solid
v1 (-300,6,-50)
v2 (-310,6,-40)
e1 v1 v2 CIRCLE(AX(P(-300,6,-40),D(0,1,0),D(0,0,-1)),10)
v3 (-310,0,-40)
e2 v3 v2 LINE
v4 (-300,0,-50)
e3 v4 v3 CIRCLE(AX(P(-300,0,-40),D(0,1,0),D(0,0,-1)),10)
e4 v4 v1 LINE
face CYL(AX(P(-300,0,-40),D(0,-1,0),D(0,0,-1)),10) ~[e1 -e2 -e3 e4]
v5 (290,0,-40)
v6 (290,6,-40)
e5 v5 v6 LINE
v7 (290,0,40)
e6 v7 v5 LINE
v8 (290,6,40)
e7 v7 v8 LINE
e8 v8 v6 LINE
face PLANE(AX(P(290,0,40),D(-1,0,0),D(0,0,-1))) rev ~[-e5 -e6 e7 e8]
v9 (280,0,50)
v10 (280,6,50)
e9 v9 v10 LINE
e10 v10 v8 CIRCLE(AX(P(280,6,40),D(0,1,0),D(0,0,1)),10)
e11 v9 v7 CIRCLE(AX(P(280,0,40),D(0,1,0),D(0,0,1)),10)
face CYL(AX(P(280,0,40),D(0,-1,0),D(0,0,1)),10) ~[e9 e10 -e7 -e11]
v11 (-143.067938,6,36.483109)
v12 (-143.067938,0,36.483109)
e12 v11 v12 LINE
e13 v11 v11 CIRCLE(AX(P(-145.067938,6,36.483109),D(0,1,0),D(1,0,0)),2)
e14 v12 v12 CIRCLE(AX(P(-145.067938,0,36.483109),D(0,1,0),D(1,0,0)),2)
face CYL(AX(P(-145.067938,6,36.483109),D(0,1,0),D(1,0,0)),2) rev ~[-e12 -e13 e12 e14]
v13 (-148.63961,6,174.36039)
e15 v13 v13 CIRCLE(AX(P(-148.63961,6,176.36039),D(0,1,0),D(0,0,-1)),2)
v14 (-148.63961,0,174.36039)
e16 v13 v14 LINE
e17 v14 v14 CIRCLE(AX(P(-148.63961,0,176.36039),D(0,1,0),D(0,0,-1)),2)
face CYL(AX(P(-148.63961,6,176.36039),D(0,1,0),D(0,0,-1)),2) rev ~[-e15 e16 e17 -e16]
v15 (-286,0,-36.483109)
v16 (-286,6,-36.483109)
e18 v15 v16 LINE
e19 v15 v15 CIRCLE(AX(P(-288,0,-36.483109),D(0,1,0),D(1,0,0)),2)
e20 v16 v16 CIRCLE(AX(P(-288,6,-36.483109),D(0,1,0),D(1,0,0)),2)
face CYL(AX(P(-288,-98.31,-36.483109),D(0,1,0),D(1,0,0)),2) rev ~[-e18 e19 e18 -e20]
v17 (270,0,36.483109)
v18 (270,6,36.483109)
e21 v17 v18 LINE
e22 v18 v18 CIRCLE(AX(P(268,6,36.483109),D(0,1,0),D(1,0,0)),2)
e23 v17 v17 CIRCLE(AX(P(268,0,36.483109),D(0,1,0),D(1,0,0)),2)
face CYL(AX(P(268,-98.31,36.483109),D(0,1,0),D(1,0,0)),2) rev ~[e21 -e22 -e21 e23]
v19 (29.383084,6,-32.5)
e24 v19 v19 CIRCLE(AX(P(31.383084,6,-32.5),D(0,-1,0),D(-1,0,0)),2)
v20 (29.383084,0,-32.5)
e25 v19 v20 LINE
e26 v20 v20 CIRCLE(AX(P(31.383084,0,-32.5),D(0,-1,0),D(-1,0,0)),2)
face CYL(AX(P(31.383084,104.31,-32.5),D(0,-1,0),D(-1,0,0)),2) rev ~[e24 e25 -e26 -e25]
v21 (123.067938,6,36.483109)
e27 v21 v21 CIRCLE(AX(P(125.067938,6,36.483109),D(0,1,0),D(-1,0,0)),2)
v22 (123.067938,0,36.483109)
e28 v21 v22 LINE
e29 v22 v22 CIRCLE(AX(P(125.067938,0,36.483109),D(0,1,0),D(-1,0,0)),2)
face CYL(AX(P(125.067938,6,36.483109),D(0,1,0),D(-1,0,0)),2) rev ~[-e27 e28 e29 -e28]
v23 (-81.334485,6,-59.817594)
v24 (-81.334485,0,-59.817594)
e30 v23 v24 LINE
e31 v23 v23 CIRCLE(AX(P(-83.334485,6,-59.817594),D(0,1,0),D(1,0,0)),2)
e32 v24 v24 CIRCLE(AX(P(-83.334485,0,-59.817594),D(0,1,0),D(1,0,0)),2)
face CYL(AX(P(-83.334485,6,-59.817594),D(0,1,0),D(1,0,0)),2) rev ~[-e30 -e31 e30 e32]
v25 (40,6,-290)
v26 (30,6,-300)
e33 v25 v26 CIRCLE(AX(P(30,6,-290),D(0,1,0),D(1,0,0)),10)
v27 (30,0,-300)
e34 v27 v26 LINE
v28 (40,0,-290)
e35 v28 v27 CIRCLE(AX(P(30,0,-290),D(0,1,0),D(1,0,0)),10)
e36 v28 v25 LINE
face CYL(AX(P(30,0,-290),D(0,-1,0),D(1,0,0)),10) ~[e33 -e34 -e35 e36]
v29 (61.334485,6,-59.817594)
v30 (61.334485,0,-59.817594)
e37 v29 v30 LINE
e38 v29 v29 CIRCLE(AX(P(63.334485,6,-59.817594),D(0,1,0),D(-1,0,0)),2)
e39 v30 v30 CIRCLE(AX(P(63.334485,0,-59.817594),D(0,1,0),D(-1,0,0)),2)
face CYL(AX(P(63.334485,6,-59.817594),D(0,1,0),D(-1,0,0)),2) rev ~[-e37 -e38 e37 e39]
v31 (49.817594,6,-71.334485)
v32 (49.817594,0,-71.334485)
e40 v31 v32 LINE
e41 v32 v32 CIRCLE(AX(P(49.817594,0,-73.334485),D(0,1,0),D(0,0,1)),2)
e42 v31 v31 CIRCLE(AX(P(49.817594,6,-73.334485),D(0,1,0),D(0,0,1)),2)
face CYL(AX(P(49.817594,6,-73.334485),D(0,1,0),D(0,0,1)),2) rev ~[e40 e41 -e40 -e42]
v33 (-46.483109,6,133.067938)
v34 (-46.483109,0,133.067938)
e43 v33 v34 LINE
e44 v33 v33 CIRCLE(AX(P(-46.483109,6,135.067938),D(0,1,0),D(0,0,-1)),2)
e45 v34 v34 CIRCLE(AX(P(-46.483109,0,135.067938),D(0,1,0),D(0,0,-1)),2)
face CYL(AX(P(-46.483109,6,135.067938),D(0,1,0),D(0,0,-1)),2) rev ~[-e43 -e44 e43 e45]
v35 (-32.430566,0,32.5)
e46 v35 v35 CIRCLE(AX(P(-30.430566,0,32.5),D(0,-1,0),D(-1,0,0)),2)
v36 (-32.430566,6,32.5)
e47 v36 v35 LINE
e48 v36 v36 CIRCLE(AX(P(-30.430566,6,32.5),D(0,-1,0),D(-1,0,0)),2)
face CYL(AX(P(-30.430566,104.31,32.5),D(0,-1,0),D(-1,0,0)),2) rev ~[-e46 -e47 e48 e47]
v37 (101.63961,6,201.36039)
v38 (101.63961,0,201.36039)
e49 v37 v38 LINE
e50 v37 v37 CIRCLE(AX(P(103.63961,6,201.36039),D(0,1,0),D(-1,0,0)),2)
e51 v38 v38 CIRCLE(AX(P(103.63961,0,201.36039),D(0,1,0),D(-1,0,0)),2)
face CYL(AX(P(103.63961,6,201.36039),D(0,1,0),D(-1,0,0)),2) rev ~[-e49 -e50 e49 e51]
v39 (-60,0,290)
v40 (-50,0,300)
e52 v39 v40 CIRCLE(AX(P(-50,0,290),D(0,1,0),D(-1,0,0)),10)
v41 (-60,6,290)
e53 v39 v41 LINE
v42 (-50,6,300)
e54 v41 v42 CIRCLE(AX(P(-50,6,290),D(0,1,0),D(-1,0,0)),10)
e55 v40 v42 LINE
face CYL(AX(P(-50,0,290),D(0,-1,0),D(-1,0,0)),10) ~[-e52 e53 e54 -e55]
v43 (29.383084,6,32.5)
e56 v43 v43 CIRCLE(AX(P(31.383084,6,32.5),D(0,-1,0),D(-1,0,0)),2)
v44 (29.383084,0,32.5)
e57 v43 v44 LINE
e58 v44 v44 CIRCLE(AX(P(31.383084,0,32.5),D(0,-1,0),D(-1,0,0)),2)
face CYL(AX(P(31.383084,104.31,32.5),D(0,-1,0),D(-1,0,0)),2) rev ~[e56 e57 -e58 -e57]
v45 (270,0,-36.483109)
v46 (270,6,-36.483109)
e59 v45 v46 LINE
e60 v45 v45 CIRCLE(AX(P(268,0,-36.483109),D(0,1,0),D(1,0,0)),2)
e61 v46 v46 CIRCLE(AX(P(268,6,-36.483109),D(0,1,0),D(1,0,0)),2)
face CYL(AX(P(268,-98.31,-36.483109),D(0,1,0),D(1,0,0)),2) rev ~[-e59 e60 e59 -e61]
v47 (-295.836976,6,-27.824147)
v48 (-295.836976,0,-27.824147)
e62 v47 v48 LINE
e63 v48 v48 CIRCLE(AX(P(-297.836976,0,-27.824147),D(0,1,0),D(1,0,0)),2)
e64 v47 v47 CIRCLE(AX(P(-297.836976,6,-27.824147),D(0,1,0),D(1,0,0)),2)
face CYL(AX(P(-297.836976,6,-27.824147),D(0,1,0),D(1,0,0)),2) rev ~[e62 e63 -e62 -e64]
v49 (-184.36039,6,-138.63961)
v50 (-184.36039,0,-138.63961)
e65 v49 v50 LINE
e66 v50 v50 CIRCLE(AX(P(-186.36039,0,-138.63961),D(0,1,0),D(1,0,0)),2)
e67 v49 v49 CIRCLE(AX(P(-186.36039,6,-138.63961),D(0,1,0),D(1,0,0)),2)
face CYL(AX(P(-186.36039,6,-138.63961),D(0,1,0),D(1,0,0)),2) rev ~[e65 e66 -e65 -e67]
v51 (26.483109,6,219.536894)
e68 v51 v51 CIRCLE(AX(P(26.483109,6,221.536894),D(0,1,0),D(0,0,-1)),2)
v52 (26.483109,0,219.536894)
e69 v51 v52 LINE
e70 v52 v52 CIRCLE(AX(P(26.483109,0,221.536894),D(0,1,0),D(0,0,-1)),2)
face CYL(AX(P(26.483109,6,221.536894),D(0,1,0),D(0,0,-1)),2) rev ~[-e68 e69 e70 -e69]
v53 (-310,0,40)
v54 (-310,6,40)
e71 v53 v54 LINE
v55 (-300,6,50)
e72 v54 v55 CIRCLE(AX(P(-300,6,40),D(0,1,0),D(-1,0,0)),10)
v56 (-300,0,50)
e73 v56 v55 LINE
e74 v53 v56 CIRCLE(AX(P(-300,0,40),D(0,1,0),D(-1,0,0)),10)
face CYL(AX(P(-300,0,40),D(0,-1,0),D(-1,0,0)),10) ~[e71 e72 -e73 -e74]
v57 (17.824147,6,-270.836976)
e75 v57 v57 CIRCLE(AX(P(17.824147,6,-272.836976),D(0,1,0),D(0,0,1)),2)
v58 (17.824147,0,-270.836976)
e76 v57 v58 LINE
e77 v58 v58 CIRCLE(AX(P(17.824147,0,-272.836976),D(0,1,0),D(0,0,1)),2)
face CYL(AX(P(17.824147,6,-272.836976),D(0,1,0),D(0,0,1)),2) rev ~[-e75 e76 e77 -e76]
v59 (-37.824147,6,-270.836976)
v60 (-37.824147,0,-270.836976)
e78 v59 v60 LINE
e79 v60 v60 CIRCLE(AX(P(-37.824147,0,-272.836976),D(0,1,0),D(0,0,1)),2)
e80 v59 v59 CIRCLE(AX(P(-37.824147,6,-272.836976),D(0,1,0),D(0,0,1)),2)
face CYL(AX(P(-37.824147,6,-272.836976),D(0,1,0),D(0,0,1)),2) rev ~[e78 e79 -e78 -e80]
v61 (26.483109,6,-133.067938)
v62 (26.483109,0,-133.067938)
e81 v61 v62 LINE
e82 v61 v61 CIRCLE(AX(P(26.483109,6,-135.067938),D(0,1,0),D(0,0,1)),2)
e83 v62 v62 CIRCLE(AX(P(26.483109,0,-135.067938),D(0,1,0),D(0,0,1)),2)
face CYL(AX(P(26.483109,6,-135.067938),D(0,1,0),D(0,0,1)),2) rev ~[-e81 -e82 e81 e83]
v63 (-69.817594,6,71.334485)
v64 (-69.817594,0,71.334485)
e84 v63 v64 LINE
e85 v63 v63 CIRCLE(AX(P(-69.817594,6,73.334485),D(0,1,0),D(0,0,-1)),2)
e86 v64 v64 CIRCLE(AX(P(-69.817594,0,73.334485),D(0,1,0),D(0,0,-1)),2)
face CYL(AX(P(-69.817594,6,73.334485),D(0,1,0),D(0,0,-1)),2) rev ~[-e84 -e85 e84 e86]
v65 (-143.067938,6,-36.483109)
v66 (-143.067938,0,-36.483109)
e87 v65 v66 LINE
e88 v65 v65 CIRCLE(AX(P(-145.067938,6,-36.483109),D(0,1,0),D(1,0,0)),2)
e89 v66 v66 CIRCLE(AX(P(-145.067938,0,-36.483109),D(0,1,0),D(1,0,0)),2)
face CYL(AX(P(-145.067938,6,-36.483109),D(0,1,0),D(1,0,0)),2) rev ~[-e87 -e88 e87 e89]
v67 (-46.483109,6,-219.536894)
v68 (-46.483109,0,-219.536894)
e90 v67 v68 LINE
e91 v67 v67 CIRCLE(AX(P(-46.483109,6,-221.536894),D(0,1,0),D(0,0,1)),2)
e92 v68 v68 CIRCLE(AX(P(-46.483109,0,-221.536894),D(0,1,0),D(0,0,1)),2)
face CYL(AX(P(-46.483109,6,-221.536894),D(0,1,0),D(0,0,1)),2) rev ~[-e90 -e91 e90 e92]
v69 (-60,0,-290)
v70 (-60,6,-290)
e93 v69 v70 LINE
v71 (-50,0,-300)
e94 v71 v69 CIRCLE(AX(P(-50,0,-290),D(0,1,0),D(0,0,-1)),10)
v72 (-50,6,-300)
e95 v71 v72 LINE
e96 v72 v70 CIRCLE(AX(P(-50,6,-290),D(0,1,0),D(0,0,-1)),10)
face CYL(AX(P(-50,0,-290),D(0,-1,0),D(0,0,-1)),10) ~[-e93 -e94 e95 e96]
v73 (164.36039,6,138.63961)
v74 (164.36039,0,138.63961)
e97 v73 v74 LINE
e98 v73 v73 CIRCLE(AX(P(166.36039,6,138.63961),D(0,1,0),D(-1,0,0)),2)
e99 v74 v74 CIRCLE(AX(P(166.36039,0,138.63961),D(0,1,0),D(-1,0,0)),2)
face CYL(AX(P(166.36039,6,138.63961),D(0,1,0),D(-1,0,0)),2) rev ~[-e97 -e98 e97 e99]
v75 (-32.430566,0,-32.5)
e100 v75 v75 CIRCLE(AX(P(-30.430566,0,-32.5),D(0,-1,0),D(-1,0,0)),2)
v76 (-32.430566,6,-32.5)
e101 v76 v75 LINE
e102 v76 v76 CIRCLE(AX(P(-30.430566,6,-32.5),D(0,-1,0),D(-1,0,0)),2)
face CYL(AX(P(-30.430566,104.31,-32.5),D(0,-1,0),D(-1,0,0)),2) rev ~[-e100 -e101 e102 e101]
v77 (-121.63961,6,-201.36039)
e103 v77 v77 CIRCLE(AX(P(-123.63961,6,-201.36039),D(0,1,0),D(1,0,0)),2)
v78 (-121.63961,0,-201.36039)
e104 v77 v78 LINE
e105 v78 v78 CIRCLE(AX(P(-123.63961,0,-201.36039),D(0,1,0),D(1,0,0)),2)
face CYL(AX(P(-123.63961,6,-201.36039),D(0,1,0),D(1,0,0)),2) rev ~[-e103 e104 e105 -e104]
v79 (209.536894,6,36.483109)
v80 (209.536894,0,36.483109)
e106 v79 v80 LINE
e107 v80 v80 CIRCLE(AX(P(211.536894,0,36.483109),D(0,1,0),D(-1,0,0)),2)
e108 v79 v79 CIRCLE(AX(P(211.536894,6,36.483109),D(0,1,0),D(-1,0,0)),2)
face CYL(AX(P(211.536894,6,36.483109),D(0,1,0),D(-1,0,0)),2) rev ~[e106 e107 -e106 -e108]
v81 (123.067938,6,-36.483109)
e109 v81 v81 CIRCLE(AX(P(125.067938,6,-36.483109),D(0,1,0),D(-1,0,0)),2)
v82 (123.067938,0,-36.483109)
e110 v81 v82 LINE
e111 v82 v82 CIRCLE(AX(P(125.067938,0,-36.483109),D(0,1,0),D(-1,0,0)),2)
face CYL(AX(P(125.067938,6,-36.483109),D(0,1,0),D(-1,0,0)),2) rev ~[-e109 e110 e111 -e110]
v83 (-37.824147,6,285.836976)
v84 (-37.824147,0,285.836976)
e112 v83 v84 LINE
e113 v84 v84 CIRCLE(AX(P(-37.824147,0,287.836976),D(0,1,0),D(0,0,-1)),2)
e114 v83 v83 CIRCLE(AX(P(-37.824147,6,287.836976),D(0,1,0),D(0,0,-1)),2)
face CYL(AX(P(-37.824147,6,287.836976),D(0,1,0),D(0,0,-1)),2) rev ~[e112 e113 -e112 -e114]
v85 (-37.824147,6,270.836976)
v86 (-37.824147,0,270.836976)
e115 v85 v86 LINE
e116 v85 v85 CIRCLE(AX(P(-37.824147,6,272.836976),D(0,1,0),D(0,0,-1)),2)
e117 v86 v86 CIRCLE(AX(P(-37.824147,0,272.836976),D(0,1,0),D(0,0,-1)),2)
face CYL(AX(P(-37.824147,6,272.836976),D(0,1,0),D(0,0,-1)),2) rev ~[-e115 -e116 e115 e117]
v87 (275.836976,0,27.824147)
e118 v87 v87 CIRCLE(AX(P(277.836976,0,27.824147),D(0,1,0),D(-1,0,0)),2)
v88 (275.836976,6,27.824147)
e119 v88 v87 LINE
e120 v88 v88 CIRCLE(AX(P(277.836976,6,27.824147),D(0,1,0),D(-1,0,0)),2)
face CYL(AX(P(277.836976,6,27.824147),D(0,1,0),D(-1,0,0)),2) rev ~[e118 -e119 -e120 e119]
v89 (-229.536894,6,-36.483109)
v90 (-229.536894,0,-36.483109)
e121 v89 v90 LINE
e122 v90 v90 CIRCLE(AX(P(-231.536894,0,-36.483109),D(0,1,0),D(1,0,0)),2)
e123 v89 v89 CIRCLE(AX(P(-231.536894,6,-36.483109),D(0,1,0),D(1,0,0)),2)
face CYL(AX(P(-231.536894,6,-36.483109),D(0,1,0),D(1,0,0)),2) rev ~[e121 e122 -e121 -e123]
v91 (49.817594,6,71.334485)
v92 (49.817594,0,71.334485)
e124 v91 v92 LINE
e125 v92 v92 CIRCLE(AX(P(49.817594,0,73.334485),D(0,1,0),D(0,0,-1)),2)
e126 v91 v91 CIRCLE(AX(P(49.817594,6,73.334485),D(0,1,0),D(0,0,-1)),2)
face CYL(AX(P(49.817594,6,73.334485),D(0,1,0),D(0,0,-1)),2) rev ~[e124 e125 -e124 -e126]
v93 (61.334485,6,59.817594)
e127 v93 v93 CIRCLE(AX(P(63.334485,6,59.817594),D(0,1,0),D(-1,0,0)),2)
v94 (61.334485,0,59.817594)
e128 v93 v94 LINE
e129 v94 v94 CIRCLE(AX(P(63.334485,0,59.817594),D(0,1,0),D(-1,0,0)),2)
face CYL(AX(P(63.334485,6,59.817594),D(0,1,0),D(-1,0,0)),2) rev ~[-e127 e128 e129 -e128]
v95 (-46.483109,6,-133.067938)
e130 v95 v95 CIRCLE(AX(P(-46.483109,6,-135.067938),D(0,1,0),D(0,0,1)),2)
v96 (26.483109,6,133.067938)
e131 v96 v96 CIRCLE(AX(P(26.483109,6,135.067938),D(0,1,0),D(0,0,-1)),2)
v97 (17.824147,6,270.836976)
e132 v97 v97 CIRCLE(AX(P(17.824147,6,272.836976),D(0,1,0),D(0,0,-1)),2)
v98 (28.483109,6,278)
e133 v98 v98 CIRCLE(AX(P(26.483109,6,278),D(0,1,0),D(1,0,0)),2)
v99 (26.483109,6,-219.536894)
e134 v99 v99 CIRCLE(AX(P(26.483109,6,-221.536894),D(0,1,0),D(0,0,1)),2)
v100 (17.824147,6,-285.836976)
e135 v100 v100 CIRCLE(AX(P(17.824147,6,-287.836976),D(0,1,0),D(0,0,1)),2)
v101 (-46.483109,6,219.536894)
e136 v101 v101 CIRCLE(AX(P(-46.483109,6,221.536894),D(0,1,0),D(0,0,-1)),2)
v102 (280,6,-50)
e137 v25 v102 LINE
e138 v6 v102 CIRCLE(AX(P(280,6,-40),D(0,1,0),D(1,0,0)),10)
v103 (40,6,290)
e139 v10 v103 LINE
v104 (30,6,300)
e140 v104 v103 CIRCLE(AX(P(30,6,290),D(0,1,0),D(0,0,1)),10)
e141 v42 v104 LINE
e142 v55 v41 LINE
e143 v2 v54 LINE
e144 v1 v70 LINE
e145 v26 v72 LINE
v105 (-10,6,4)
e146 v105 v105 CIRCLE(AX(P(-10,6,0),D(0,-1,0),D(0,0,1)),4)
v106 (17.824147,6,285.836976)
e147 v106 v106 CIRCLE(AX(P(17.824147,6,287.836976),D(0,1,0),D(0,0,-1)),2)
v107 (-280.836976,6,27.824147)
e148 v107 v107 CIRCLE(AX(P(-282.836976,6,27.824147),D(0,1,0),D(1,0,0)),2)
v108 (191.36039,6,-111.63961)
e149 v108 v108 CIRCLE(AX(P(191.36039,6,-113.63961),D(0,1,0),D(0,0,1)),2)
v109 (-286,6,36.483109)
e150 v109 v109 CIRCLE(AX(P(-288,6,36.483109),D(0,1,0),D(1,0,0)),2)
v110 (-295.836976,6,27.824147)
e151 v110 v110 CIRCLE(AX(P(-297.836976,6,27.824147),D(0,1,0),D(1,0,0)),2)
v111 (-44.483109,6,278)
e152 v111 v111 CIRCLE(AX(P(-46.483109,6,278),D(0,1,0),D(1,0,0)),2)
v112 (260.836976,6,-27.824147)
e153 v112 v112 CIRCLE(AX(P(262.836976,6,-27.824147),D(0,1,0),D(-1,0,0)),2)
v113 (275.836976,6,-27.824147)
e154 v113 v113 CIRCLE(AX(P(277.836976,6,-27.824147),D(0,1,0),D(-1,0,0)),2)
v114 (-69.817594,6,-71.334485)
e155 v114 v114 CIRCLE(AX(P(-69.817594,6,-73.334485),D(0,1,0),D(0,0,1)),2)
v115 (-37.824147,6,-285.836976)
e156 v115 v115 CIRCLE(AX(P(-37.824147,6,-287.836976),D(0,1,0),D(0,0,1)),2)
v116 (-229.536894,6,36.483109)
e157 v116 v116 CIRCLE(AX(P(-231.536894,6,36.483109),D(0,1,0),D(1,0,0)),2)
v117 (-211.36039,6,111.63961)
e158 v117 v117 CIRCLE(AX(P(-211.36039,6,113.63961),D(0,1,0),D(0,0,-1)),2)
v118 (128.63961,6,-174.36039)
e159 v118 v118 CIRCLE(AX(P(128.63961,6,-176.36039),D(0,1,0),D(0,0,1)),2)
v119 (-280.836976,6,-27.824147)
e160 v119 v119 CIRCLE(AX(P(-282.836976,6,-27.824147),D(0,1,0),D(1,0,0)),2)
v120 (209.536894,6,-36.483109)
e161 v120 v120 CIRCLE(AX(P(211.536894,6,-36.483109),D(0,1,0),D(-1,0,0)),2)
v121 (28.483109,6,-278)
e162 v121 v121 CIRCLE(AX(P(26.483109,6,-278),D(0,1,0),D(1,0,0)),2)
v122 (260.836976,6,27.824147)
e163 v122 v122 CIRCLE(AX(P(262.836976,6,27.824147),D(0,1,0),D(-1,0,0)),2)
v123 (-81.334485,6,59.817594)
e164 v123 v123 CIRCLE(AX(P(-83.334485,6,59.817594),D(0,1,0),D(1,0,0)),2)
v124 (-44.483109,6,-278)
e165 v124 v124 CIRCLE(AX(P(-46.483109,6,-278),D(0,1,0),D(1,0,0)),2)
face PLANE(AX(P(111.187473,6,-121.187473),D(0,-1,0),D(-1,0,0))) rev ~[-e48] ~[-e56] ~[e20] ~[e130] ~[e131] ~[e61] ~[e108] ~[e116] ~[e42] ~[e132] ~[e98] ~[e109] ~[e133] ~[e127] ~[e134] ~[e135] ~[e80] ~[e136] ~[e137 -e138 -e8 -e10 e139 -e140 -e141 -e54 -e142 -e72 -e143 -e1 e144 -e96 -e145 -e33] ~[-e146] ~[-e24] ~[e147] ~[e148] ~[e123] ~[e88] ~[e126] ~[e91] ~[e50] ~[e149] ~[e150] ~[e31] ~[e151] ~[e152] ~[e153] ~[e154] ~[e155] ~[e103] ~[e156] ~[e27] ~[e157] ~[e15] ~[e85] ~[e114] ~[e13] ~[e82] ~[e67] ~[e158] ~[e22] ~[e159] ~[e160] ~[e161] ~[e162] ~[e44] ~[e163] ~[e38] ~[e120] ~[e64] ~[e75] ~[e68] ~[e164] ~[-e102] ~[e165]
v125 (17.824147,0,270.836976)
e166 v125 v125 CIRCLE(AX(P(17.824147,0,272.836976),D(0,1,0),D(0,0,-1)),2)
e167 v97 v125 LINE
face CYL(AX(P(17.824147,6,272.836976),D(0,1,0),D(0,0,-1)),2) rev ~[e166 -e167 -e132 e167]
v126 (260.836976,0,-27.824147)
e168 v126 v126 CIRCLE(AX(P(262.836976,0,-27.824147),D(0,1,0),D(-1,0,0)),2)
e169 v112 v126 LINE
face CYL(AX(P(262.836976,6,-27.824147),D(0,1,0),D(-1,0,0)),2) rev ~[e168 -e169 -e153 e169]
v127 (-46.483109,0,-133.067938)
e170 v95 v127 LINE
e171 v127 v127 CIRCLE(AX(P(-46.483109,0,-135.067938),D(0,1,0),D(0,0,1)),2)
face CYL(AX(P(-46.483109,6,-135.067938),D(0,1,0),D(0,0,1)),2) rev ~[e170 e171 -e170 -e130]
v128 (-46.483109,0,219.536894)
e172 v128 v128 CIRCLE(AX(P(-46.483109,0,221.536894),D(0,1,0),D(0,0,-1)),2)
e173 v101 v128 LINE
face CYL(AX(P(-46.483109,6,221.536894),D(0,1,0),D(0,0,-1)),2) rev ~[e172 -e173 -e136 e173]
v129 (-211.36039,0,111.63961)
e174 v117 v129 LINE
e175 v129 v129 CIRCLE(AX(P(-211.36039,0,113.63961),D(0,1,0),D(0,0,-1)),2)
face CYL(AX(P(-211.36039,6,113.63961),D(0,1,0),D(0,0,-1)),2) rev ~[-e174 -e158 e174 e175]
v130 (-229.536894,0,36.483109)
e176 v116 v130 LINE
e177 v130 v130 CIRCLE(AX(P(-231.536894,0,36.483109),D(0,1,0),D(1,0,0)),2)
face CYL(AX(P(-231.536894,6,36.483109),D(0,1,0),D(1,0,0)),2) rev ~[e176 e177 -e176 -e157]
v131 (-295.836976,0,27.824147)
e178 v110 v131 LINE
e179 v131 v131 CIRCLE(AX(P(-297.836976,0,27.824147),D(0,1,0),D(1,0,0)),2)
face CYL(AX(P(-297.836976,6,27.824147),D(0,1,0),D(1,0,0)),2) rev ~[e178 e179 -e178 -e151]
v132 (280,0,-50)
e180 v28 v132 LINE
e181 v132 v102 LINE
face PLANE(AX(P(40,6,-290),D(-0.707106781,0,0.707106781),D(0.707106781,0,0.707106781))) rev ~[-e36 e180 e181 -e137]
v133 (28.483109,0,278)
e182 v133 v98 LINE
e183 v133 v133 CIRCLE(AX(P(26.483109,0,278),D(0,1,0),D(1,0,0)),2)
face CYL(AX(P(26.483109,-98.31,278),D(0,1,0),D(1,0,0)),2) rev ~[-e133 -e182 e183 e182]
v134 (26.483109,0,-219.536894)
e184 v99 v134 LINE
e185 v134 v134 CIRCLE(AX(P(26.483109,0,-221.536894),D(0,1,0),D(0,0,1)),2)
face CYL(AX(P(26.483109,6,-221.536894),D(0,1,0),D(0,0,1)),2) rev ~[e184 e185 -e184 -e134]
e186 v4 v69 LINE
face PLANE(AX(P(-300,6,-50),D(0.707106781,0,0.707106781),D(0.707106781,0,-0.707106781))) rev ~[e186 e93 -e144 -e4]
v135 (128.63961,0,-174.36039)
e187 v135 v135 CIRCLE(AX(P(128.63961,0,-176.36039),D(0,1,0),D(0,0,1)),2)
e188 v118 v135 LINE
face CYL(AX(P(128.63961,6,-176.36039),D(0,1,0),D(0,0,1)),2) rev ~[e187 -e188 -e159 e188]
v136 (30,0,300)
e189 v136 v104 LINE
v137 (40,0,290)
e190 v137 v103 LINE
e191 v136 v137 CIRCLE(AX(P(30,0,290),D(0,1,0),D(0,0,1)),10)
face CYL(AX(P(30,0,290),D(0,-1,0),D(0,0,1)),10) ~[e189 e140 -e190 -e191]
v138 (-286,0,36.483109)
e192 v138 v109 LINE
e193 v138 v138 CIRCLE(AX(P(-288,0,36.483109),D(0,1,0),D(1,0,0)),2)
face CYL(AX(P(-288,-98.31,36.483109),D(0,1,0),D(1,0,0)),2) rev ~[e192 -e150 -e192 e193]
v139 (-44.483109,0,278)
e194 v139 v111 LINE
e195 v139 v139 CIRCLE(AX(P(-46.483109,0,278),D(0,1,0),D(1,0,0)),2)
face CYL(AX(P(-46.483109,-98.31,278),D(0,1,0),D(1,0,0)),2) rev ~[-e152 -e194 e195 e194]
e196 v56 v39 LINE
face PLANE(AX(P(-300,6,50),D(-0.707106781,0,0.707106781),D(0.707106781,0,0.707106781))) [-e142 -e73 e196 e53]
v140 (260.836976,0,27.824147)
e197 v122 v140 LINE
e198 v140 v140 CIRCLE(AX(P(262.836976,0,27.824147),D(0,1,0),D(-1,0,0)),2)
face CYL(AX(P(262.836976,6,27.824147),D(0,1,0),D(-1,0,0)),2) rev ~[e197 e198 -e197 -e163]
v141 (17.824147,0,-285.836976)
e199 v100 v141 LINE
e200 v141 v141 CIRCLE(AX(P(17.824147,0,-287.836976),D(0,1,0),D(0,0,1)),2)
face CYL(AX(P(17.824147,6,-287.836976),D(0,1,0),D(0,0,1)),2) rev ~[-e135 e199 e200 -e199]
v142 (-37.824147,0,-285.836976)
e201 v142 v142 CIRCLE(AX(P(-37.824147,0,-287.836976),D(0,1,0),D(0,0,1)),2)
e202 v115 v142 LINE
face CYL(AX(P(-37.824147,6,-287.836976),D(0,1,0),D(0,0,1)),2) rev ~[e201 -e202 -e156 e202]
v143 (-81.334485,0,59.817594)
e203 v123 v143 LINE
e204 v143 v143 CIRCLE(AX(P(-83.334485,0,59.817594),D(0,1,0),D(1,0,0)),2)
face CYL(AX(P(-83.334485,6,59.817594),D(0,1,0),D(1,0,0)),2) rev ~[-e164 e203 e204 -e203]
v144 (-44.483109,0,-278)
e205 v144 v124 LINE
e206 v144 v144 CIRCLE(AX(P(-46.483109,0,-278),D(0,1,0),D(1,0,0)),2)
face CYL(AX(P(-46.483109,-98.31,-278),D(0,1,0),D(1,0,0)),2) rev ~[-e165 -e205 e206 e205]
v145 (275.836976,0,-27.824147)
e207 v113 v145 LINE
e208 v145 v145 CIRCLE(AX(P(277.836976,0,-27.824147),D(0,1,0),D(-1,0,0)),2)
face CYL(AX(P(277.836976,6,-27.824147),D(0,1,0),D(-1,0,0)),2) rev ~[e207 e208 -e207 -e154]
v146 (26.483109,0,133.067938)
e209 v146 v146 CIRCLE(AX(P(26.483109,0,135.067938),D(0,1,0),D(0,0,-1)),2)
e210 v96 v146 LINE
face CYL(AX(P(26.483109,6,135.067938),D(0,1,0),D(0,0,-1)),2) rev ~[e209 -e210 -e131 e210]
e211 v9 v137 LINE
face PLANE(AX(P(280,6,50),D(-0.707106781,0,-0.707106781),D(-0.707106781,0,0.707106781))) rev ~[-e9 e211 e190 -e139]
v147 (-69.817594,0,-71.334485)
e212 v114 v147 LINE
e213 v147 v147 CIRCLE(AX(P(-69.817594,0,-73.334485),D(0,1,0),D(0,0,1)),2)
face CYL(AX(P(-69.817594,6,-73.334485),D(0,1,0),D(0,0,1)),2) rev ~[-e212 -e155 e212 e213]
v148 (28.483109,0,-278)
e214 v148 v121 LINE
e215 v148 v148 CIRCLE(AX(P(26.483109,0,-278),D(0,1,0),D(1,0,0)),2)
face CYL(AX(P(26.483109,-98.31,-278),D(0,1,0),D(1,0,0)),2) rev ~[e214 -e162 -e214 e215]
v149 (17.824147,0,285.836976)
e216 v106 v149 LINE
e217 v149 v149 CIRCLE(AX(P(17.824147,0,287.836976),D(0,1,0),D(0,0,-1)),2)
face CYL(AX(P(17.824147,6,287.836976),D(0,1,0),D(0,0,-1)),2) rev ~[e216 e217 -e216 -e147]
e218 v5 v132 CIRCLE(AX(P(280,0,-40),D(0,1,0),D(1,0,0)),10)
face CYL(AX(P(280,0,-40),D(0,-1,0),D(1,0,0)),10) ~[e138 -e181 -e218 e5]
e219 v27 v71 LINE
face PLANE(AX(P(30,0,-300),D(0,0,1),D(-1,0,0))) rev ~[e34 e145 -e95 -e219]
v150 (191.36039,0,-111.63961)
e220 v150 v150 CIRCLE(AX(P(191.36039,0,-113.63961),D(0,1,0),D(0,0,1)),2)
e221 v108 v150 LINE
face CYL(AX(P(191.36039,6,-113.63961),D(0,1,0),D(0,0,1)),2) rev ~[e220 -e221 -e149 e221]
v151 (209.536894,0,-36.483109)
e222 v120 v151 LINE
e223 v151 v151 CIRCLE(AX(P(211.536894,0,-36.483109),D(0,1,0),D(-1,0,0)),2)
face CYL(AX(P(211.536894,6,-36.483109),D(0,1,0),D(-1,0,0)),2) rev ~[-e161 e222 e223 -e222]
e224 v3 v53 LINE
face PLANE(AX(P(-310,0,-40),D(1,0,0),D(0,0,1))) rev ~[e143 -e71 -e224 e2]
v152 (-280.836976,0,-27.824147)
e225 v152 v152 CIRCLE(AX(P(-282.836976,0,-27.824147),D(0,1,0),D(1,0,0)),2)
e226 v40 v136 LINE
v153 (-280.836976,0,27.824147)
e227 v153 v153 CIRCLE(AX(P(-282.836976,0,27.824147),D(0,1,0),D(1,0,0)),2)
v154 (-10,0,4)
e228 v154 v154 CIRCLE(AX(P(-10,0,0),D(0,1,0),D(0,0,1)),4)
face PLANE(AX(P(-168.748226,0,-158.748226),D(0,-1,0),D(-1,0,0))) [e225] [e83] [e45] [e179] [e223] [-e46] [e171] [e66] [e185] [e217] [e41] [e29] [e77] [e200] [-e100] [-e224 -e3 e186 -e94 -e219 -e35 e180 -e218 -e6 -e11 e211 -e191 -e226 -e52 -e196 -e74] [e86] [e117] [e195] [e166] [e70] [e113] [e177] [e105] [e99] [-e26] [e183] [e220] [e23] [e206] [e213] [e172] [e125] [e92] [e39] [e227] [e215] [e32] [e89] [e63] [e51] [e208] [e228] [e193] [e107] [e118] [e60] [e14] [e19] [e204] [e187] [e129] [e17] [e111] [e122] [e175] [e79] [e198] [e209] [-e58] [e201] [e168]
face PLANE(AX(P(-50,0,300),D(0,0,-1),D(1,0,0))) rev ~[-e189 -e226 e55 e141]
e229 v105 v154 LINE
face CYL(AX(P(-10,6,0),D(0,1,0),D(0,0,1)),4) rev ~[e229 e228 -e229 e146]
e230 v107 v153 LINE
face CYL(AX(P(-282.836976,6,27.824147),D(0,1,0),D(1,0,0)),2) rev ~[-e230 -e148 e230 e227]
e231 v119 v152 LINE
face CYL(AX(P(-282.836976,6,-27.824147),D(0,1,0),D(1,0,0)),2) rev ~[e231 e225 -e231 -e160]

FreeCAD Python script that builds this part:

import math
import FreeCAD as App
import Part
import Sketcher
Q = App.Units.Quantity

doc = App.newDocument("Part")
body = doc.addObject("PartDesign::Body", "Body")

sketch1 = body.newObject("Sketcher::SketchObject", "Sketch")
sketch1.AttachmentSupport = (doc.getObject("XZ_Plane"), [""])
sketch1.MapMode = "FlatFace"
sketch1.addGeometry(Part.LineSegment(App.Vector(-110, -50, 0), App.Vector(-300, -50, 0)), False)
sketch1.addGeometry(Part.ArcOfCircle(Part.Circle(App.Vector(-300, -40, 0), App.Vector(0, 0, 1), 10), math.radians(180), math.radians(270)), False)
sketch1.addGeometry(Part.LineSegment(App.Vector(-310, -40, 0), App.Vector(-310, 40, 0)), False)
sketch1.addGeometry(Part.ArcOfCircle(Part.Circle(App.Vector(-300, 40, 0), App.Vector(0, 0, 1), 10), math.radians(90), math.radians(180)), False)
sketch1.addGeometry(Part.LineSegment(App.Vector(-300, 50, 0), App.Vector(-110, 50, 0)), False)
sketch1.addGeometry(Part.LineSegment(App.Vector(-110, 50, 0), App.Vector(-60, 100, 0)), False)
sketch1.addGeometry(Part.LineSegment(App.Vector(-60, 100, 0), App.Vector(-60, 290, 0)), False)
sketch1.addGeometry(Part.ArcOfCircle(Part.Circle(App.Vector(-50, 290, 0), App.Vector(0, 0, 1), 10), math.radians(90), math.radians(180)), False)
sketch1.addGeometry(Part.LineSegment(App.Vector(-50, 300, 0), App.Vector(30, 300, 0)), False)
sketch1.addGeometry(Part.ArcOfCircle(Part.Circle(App.Vector(30, 290, 0), App.Vector(0, 0, 1), 10), math.radians(0), math.radians(90)), False)
sketch1.addGeometry(Part.LineSegment(App.Vector(40, 290, 0), App.Vector(40, 100, 0)), False)
sketch1.addGeometry(Part.LineSegment(App.Vector(40, 100, 0), App.Vector(90, 50, 0)), False)
sketch1.addGeometry(Part.LineSegment(App.Vector(90, 50, 0), App.Vector(280, 50, 0)), False)
sketch1.addGeometry(Part.ArcOfCircle(Part.Circle(App.Vector(280, 40, 0), App.Vector(0, 0, 1), 10), math.radians(0), math.radians(90)), False)
sketch1.addGeometry(Part.LineSegment(App.Vector(290, 40, 0), App.Vector(290, -40, 0)), False)
sketch1.addGeometry(Part.ArcOfCircle(Part.Circle(App.Vector(280, -40, 0), App.Vector(0, 0, 1), 10), math.radians(-90), math.radians(0)), False)
sketch1.addGeometry(Part.LineSegment(App.Vector(280, -50, 0), App.Vector(90, -50, 0)), False)
sketch1.addGeometry(Part.LineSegment(App.Vector(90, -50, 0), App.Vector(40, -100, 0)), False)
sketch1.addGeometry(Part.LineSegment(App.Vector(40, -100, 0), App.Vector(40, -290, 0)), False)
sketch1.addGeometry(Part.ArcOfCircle(Part.Circle(App.Vector(30, -290, 0), App.Vector(0, 0, 1), 10), math.radians(-90), math.radians(0)), False)
sketch1.addGeometry(Part.LineSegment(App.Vector(30, -300, 0), App.Vector(-50, -300, 0)), False)
sketch1.addGeometry(Part.ArcOfCircle(Part.Circle(App.Vector(-50, -290, 0), App.Vector(0, 0, 1), 10), math.radians(180), math.radians(270)), False)
sketch1.addGeometry(Part.LineSegment(App.Vector(-60, -290, 0), App.Vector(-60, -100, 0)), False)
sketch1.addGeometry(Part.LineSegment(App.Vector(-60, -100, 0), App.Vector(-110, -50, 0)), False)
sketch1.addConstraint(Sketcher.Constraint("Tangent", 0, 2, 1, 2))
sketch1.addConstraint(Sketcher.Constraint("Tangent", 1, 1, 2, 1))
sketch1.addConstraint(Sketcher.Constraint("Tangent", 2, 2, 3, 2))
sketch1.addConstraint(Sketcher.Constraint("Tangent", 3, 1, 4, 1))
sketch1.addConstraint(Sketcher.Constraint("Coincident", 4, 2, 5, 1))
sketch1.addConstraint(Sketcher.Constraint("Coincident", 5, 2, 6, 1))
sketch1.addConstraint(Sketcher.Constraint("Tangent", 6, 2, 7, 2))
sketch1.addConstraint(Sketcher.Constraint("Tangent", 7, 1, 8, 1))
sketch1.addConstraint(Sketcher.Constraint("Tangent", 8, 2, 9, 2))
sketch1.addConstraint(Sketcher.Constraint("Tangent", 9, 1, 10, 1))
sketch1.addConstraint(Sketcher.Constraint("Coincident", 10, 2, 11, 1))
sketch1.addConstraint(Sketcher.Constraint("Coincident", 11, 2, 12, 1))
sketch1.addConstraint(Sketcher.Constraint("Tangent", 12, 2, 13, 2))
sketch1.addConstraint(Sketcher.Constraint("Tangent", 13, 1, 14, 1))
sketch1.addConstraint(Sketcher.Constraint("Tangent", 14, 2, 15, 2))
sketch1.addConstraint(Sketcher.Constraint("Tangent", 15, 1, 16, 1))
sketch1.addConstraint(Sketcher.Constraint("Coincident", 16, 2, 17, 1))
sketch1.addConstraint(Sketcher.Constraint("Coincident", 17, 2, 18, 1))
sketch1.addConstraint(Sketcher.Constraint("Tangent", 18, 2, 19, 2))
sketch1.addConstraint(Sketcher.Constraint("Tangent", 19, 1, 20, 1))
sketch1.addConstraint(Sketcher.Constraint("Tangent", 20, 2, 21, 2))
sketch1.addConstraint(Sketcher.Constraint("Tangent", 21, 1, 22, 1))
sketch1.addConstraint(Sketcher.Constraint("Coincident", 22, 2, 23, 1))
sketch1.addConstraint(Sketcher.Constraint("Coincident", 23, 2, 0, 1))
sketch1.addConstraint(Sketcher.Constraint("Horizontal", 0))
sketch1.addConstraint(Sketcher.Constraint("Vertical", 2))
sketch1.addConstraint(Sketcher.Constraint("Horizontal", 4))
sketch1.addConstraint(Sketcher.Constraint("Vertical", 6))
sketch1.addConstraint(Sketcher.Constraint("Horizontal", 8))
sketch1.addConstraint(Sketcher.Constraint("Vertical", 10))
sketch1.addConstraint(Sketcher.Constraint("Horizontal", 12))
sketch1.addConstraint(Sketcher.Constraint("Vertical", 14))
sketch1.addConstraint(Sketcher.Constraint("Horizontal", 16))
sketch1.addConstraint(Sketcher.Constraint("Vertical", 18))
sketch1.addConstraint(Sketcher.Constraint("Horizontal", 20))
sketch1.addConstraint(Sketcher.Constraint("Vertical", 22))
sketch1.addConstraint(Sketcher.Constraint("Equal", 1, 3))
sketch1.addConstraint(Sketcher.Constraint("Equal", 3, 7))
sketch1.addConstraint(Sketcher.Constraint("Equal", 7, 9))
sketch1.addConstraint(Sketcher.Constraint("Equal", 9, 13))
sketch1.addConstraint(Sketcher.Constraint("Equal", 13, 15))
sketch1.addConstraint(Sketcher.Constraint("Equal", 15, 19))
sketch1.addConstraint(Sketcher.Constraint("Equal", 19, 21))
sketch1.addConstraint(Sketcher.Constraint("Symmetric", 9, 3, 19, 3, -1))
sketch1.addConstraint(Sketcher.Constraint("Symmetric", 11, 2, 16, 2, -1))
sketch1.addConstraint(Sketcher.Constraint("Symmetric", 5, 2, 22, 2, -1))
sketch1.addConstraint(Sketcher.Constraint("Symmetric", 4, 2, 23, 2, -1))
sketch1.addConstraint(Sketcher.Constraint("Perpendicular", 5, 11))
sketch1.addConstraint(Sketcher.Constraint("Perpendicular", 11, 17))
sketch1.addConstraint(Sketcher.Constraint("Perpendicular", 17, 23))
sketch1.addConstraint(Sketcher.Constraint("Horizontal", 3, 3, 13, 3))
sketch1.addConstraint(Sketcher.Constraint("Horizontal", 5, 2, 10, 2))
sketch1.addConstraint(Sketcher.Constraint("Equal", 4, 12))
sketch1.addConstraint(Sketcher.Constraint("Equal", 20, 2))
sketch1.addConstraint(Sketcher.Constraint("Equal", 16, 6))
sketch1.addConstraint(Sketcher.Constraint("Radius", 1, Q("10 mm")))
sketch1.addConstraint(Sketcher.Constraint("DistanceX", 0, 2, 0, 1, Q("190 mm")))
sketch1.addConstraint(Sketcher.Constraint("DistanceX", 8, 1, 8, 2, Q("80 mm")))
sketch1.addConstraint(Sketcher.Constraint("DistanceX", 1, 3, -1, 1, Q("300 mm")))
sketch1.addConstraint(Sketcher.Constraint("DistanceX", 7, 3, -1, 1, Q("50 mm")))
pad1 = body.newObject("PartDesign::Pad", "Pad")
pad1.Profile = sketch1
pad1.Length = 6
pad1.Reversed = True

sketch2 = body.newObject("Sketcher::SketchObject", "Sketch001")
sketch2.AttachmentSupport = (doc.getObject("XZ_Plane"), [""])
sketch2.MapMode = "FlatFace"
sketch2.AttachmentOffset = App.Placement(App.Vector(0, 0, -6), App.Rotation())
sketch2.addGeometry(Part.Circle(App.Vector(-10, 0, 0), App.Vector(0, 0, 1), 0.495654), False)
sketch2.addConstraint(Sketcher.Constraint("PointOnObject", 0, 3, -1))
sketch2.addConstraint(Sketcher.Constraint("DistanceX", 0, 3, -1, 1, Q("10 mm")))
sketch2.addConstraint(Sketcher.Constraint("Diameter", 0, Q("0.991307 mm")))
pocket1 = body.newObject("PartDesign::Pocket", "Pocket")
pocket1.Profile = sketch2
pocket1.Length = 10
pocket1.Reversed = True

sketch3 = body.newObject("Sketcher::SketchObject", "Sketch002")
sketch3.AttachmentSupport = (doc.getObject("XZ_Plane"), [""])
sketch3.MapMode = "FlatFace"
sketch3.AttachmentOffset = App.Placement(App.Vector(0, 0, -6), App.Rotation())
sketch3.addGeometry(Part.LineSegment(App.Vector(-60, -290, 0), App.Vector(-300, -50, 0)), False)
sketch3.addGeometry(Part.LineSegment(App.Vector(-300, -50, 0), App.Vector(-250, -50, 0)), False)
sketch3.addGeometry(Part.LineSegment(App.Vector(-250, -50, 0), App.Vector(-60, -240, 0)), False)
sketch3.addGeometry(Part.LineSegment(App.Vector(-60, -240, 0), App.Vector(-60, -290, 0)), False)
sketch3.addGeometry(Part.LineSegment(App.Vector(280, -50, 0), App.Vector(40, -290, 0)), False)
sketch3.addGeometry(Part.LineSegment(App.Vector(40, -290, 0), App.Vector(40, -240, 0)), False)
sketch3.addGeometry(Part.LineSegment(App.Vector(40, -240, 0), App.Vector(230, -50, 0)), False)
sketch3.addGeometry(Part.LineSegment(App.Vector(230, -50, 0), App.Vector(280, -50, 0)), False)
sketch3.addGeometry(Part.LineSegment(App.Vector(40, 290, 0), App.Vector(280, 50, 0)), False)
sketch3.addGeometry(Part.LineSegment(App.Vector(280, 50, 0), App.Vector(230, 49.077972, 0)), False)
sketch3.addGeometry(Part.LineSegment(App.Vector(230, 49.077972, 0), App.Vector(40, 240, 0)), False)
sketch3.addGeometry(Part.LineSegment(App.Vector(40, 240, 0), App.Vector(40, 290, 0)), False)
sketch3.addGeometry(Part.LineSegment(App.Vector(-300, 50, 0), App.Vector(-60, 290, 0)), False)
sketch3.addGeometry(Part.LineSegment(App.Vector(-60, 290, 0), App.Vector(-60, 240, 0)), False)
sketch3.addGeometry(Part.LineSegment(App.Vector(-60, 240, 0), App.Vector(-250, 50, 0)), False)
sketch3.addGeometry(Part.LineSegment(App.Vector(-250, 50, 0), App.Vector(-300, 50, 0)), False)
sketch3.addConstraint(Sketcher.Constraint("Coincident", 0, 2, 1, 1))
sketch3.addConstraint(Sketcher.Constraint("Coincident", 1, 2, 2, 1))
sketch3.addConstraint(Sketcher.Constraint("Coincident", 2, 2, 3, 1))
sketch3.addConstraint(Sketcher.Constraint("Coincident", 3, 2, 0, 1))
sketch3.addConstraint(Sketcher.Constraint("Coincident", 4, 2, 5, 1))
sketch3.addConstraint(Sketcher.Constraint("Coincident", 5, 2, 6, 1))
sketch3.addConstraint(Sketcher.Constraint("Coincident", 6, 2, 7, 1))
sketch3.addConstraint(Sketcher.Constraint("Coincident", 7, 2, 4, 1))
sketch3.addConstraint(Sketcher.Constraint("Coincident", 8, 2, 9, 1))
sketch3.addConstraint(Sketcher.Constraint("Coincident", 9, 2, 10, 1))
sketch3.addConstraint(Sketcher.Constraint("Coincident", 10, 2, 11, 1))
sketch3.addConstraint(Sketcher.Constraint("Coincident", 11, 2, 8, 1))
sketch3.addConstraint(Sketcher.Constraint("Coincident", 12, 2, 13, 1))
sketch3.addConstraint(Sketcher.Constraint("Coincident", 13, 2, 14, 1))
sketch3.addConstraint(Sketcher.Constraint("Coincident", 14, 2, 15, 1))
sketch3.addConstraint(Sketcher.Constraint("Coincident", 15, 2, 12, 1))
sketch3.addConstraint(Sketcher.Constraint("Horizontal", 1))
sketch3.addConstraint(Sketcher.Constraint("Vertical", 3))
sketch3.addConstraint(Sketcher.Constraint("Vertical", 5))
sketch3.addConstraint(Sketcher.Constraint("Horizontal", 7))
sketch3.addConstraint(Sketcher.Constraint("Vertical", 11))
sketch3.addConstraint(Sketcher.Constraint("Vertical", 13))
sketch3.addConstraint(Sketcher.Constraint("Horizontal", 15))
sketch3.addConstraint(Sketcher.Constraint("Symmetric", 7, 2, 8, 2, -1))
sketch3.addConstraint(Sketcher.Constraint("Symmetric", 5, 2, 10, 2, -1))
sketch3.addConstraint(Sketcher.Constraint("Symmetric", 3, 2, 12, 2, -1))
sketch3.addConstraint(Sketcher.Constraint("Symmetric", 1, 2, 14, 2, -1))
sketch3.addConstraint(Sketcher.Constraint("Parallel", 0, 2))
sketch3.addConstraint(Sketcher.Constraint("Perpendicular", 2, 4))
sketch3.addConstraint(Sketcher.Constraint("Parallel", 4, 6))
sketch3.addConstraint(Sketcher.Constraint("Perpendicular", 6, 8))
sketch3.addConstraint(Sketcher.Constraint("Perpendicular", 8, 12))
sketch3.addConstraint(Sketcher.Constraint("Parallel", 12, 14))
sketch3.addConstraint(Sketcher.Constraint("Horizontal", 3, 2, 4, 2))
sketch3.addConstraint(Sketcher.Constraint("Horizontal", 2, 2, 5, 2))
sketch3.addConstraint(Sketcher.Constraint("Horizontal", 1, 2, 6, 2))
sketch3.addConstraint(Sketcher.Constraint("Horizontal", 11, 2, 12, 2))
sketch3.addConstraint(Sketcher.Constraint("Vertical", 6, 2, 9, 2))
sketch3.addConstraint(Sketcher.Constraint("DistanceX", 1, 1, 1, 2, Q("50 mm")))
sketch3.addConstraint(Sketcher.Constraint("DistanceX", 0, 2, -1, 1, Q("300 mm")))
sketch3.addConstraint(Sketcher.Constraint("DistanceY", 0, 2, -1, 1, Q("50 mm")))
sketch3.addConstraint(Sketcher.Constraint("DistanceX", 2, 2, -1, 1, Q("60 mm")))
sketch3.addConstraint(Sketcher.Constraint("DistanceX", -1, 1, 4, 2, Q("40 mm")))
sketch3.addConstraint(Sketcher.Constraint("Distance", 9, Q("50.008501 mm")))
pad2 = body.newObject("PartDesign::Pad", "Pad001")
pad2.Profile = sketch3
pad2.Length = 6

sketch4 = body.newObject("Sketcher::SketchObject", "Sketch003")
sketch4.AttachmentSupport = (doc.getObject("XZ_Plane"), [""])
sketch4.MapMode = "FlatFace"
sketch4.AttachmentOffset = App.Placement(App.Vector(0, 0, -6), App.Rotation())
sketch4.addGeometry(Part.Circle(App.Vector(-37.824147, -287.836976, 0), App.Vector(0, 0, 1), 2), False)
sketch4.addGeometry(Part.Circle(App.Vector(-37.824147, -272.836976, 0), App.Vector(0, 0, 1), 2), False)
sketch4.addGeometry(Part.Circle(App.Vector(-46.483109, -221.536894, 0), App.Vector(0, 0, 1), 2), False)
sketch4.addGeometry(Part.Circle(App.Vector(-46.483109, -135.067938, 0), App.Vector(0, 0, 1), 2), False)
sketch4.addGeometry(Part.Circle(App.Vector(-69.817594, -73.334485, 0), App.Vector(0, 0, 1), 2), False)
sketch4.addGeometry(Part.Circle(App.Vector(49.817594, -73.334485, 0), App.Vector(0, 0, 1), 2), False)
sketch4.addGeometry(Part.Circle(App.Vector(26.483109, -135.067938, 0), App.Vector(0, 0, 1), 2), False)
sketch4.addGeometry(Part.Circle(App.Vector(26.483109, -221.536894, 0), App.Vector(0, 0, 1), 2), False)
sketch4.addGeometry(Part.Circle(App.Vector(191.36039, -113.63961, 0), App.Vector(0, 0, 1), 2), False)
sketch4.addGeometry(Part.Circle(App.Vector(128.63961, -176.36039, 0), App.Vector(0, 0, 1), 2), False)
sketch4.addGeometry(Part.Circle(App.Vector(17.824147, -272.836976, 0), App.Vector(0, 0, 1), 2), False)
sketch4.addGeometry(Part.Circle(App.Vector(17.824147, -287.836976, 0), App.Vector(0, 0, 1), 2), False)
sketch4.addGeometry(Part.Circle(App.Vector(-10, 0, 0), App.Vector(0, 0, 1), 4), False)
sketch4.addConstraint(Sketcher.Constraint("Equal", 0, 1))
sketch4.addConstraint(Sketcher.Constraint("Equal", 1, 2))
sketch4.addConstraint(Sketcher.Constraint("Equal", 2, 3))
sketch4.addConstraint(Sketcher.Constraint("Equal", 3, 4))
sketch4.addConstraint(Sketcher.Constraint("Equal", 4, 5))
sketch4.addConstraint(Sketcher.Constraint("Equal", 5, 6))
sketch4.addConstraint(Sketcher.Constraint("Equal", 6, 7))
sketch4.addConstraint(Sketcher.Constraint("Equal", 7, 8))
sketch4.addConstraint(Sketcher.Constraint("Equal", 8, 9))
sketch4.addConstraint(Sketcher.Constraint("Equal", 9, 10))
sketch4.addConstraint(Sketcher.Constraint("Equal", 10, 11))
sketch4.addConstraint(Sketcher.Constraint("PointOnObject", 12, 3, -1))
sketch4.addConstraint(Sketcher.Constraint("Horizontal", 4, 3, 5, 3))
sketch4.addConstraint(Sketcher.Constraint("Horizontal", 3, 3, 6, 3))
sketch4.addConstraint(Sketcher.Constraint("Horizontal", 2, 3, 7, 3))
sketch4.addConstraint(Sketcher.Constraint("Horizontal", 1, 3, 10, 3))
sketch4.addConstraint(Sketcher.Constraint("Horizontal", 0, 3, 11, 3))
sketch4.addConstraint(Sketcher.Constraint("Vertical", 0, 3, 1, 3))
sketch4.addConstraint(Sketcher.Constraint("Vertical", 2, 3, 3, 3))
sketch4.addConstraint(Sketcher.Constraint("Vertical", 6, 3, 7, 3))
sketch4.addConstraint(Sketcher.Constraint("Vertical", 10, 3, 11, 3))
sketch4.addConstraint(Sketcher.Constraint("Diameter", 0, Q("4 mm")))
sketch4.addConstraint(Sketcher.Constraint("Diameter", 12, Q("8 mm")))
sketch4.addConstraint(Sketcher.Constraint("DistanceX", 12, 3, -1, 1, Q("10 mm")))
sketch4.addConstraint(Sketcher.Constraint("DistanceY", 0, 3, 1, 3, Q("15 mm")))
sketch4.addConstraint(Sketcher.Constraint("DistanceX", 3, 3, 8, 3, Q("237.843499 mm")))
sketch4.addConstraint(Sketcher.Constraint("DistanceX", 6, 3, 9, 3, Q("102.156501 mm")))
sketch4.addConstraint(Sketcher.Constraint("DistanceX", 2, 3, -1, 1, Q("46.483109 mm")))
sketch4.addConstraint(Sketcher.Constraint("DistanceY", 3, 3, -1, 1, Q("135.067938 mm")))
sketch4.addConstraint(Sketcher.Constraint("DistanceX", -1, 1, 6, 3, Q("26.483109 mm")))
sketch4.addConstraint(Sketcher.Constraint("DistanceY", 8, 3, -1, 1, Q("113.63961 mm")))
sketch4.addConstraint(Sketcher.Constraint("DistanceY", 9, 3, -1, 1, Q("176.36039 mm")))
sketch4.addConstraint(Sketcher.Constraint("DistanceY", 1, 3, 2, 3, Q("51.300082 mm")))
sketch4.addConstraint(Sketcher.Constraint("DistanceY", 2, 3, 4, 3, Q("148.202409 mm")))
sketch4.addConstraint(Sketcher.Constraint("DistanceX", 4, 3, 5, 3, Q("119.635188 mm")))
sketch4.addConstraint(Sketcher.Constraint("DistanceX", 1, 3, 5, 3, Q("87.641741 mm")))
sketch4.addConstraint(Sketcher.Constraint("DistanceX", 0, 3, -1, 1, Q("37.824147 mm")))
sketch4.addConstraint(Sketcher.Constraint("DistanceY", 0, 3, -1, 1, Q("287.836976 mm")))
sketch4.addConstraint(Sketcher.Constraint("DistanceX", -1, 1, 10, 3, Q("17.824147 mm")))
pocket2 = body.newObject("PartDesign::Pocket", "Pocket001")
pocket2.Profile = sketch4
pocket2.Length = 12
pocket2.Reversed = True
doc.recompute()

datumline = body.newObject("PartDesign::Line", "DatumLine")
datumline.Placement = App.Placement(App.Vector(-10, 0, 0), App.Rotation(App.Vector(0, 0, 1), App.Vector(0, 1, 0)))
polarpattern = body.newObject("PartDesign::PolarPattern", "PolarPattern")
polarpattern.Originals = [pocket2]
polarpattern.Axis = (datumline, [""])
polarpattern.Angle = 360
polarpattern.Occurrences = 4
body.Tip = polarpattern

sketch5 = body.newObject("Sketcher::SketchObject", "Sketch004")
sketch5.AttachmentSupport = (doc.getObject("XZ_Plane"), [""])
sketch5.MapMode = "FlatFace"
sketch5.AttachmentOffset = App.Placement(App.Vector(0, 0, -6), App.Rotation())
sketch5.addGeometry(Part.LineSegment(App.Vector(230, -50, 0), App.Vector(40, -240, 0)), False)
sketch5.addGeometry(Part.LineSegment(App.Vector(40, -240, 0), App.Vector(40, -100, 0)), False)
sketch5.addGeometry(Part.LineSegment(App.Vector(40, -100, 0), App.Vector(90, -50, 0)), False)
sketch5.addGeometry(Part.LineSegment(App.Vector(90, -50, 0), App.Vector(230, -50, 0)), False)
sketch5.addGeometry(Part.LineSegment(App.Vector(229.082425, 50, 0), App.Vector(90, 50, 0)), False)
sketch5.addGeometry(Part.LineSegment(App.Vector(90, 50, 0), App.Vector(40, 100, 0)), False)
sketch5.addGeometry(Part.LineSegment(App.Vector(40, 100, 0), App.Vector(40, 240, 0)), False)
sketch5.addGeometry(Part.LineSegment(App.Vector(40, 240, 0), App.Vector(229.082425, 50, 0)), False)
sketch5.addGeometry(Part.LineSegment(App.Vector(-60, -100, 0), App.Vector(-60, -240, 0)), False)
sketch5.addGeometry(Part.LineSegment(App.Vector(-60, -240, 0), App.Vector(-250, -50, 0)), False)
sketch5.addGeometry(Part.LineSegment(App.Vector(-250, -50, 0), App.Vector(-110, -50, 0)), False)
sketch5.addGeometry(Part.LineSegment(App.Vector(-110, -50, 0), App.Vector(-60, -100, 0)), False)
sketch5.addGeometry(Part.LineSegment(App.Vector(-60, 100, 0), App.Vector(-110, 50, 0)), False)
sketch5.addGeometry(Part.LineSegment(App.Vector(-110, 50, 0), App.Vector(-250, 50, 0)), False)
sketch5.addGeometry(Part.LineSegment(App.Vector(-250, 50, 0), App.Vector(-60, 240, 0)), False)
sketch5.addGeometry(Part.LineSegment(App.Vector(-60, 240, 0), App.Vector(-60, 100, 0)), False)
sketch5.addConstraint(Sketcher.Constraint("Coincident", 0, 2, 1, 1))
sketch5.addConstraint(Sketcher.Constraint("Coincident", 1, 2, 2, 1))
sketch5.addConstraint(Sketcher.Constraint("Coincident", 2, 2, 3, 1))
sketch5.addConstraint(Sketcher.Constraint("Coincident", 3, 2, 0, 1))
sketch5.addConstraint(Sketcher.Constraint("Coincident", 4, 2, 5, 1))
sketch5.addConstraint(Sketcher.Constraint("Coincident", 5, 2, 6, 1))
sketch5.addConstraint(Sketcher.Constraint("Coincident", 6, 2, 7, 1))
sketch5.addConstraint(Sketcher.Constraint("Coincident", 7, 2, 4, 1))
sketch5.addConstraint(Sketcher.Constraint("Coincident", 8, 2, 9, 1))
sketch5.addConstraint(Sketcher.Constraint("Coincident", 9, 2, 10, 1))
sketch5.addConstraint(Sketcher.Constraint("Coincident", 10, 2, 11, 1))
sketch5.addConstraint(Sketcher.Constraint("Coincident", 11, 2, 8, 1))
sketch5.addConstraint(Sketcher.Constraint("Coincident", 12, 2, 13, 1))
sketch5.addConstraint(Sketcher.Constraint("Coincident", 13, 2, 14, 1))
sketch5.addConstraint(Sketcher.Constraint("Coincident", 14, 2, 15, 1))
sketch5.addConstraint(Sketcher.Constraint("Coincident", 15, 2, 12, 1))
sketch5.addConstraint(Sketcher.Constraint("Vertical", 1))
sketch5.addConstraint(Sketcher.Constraint("Horizontal", 3))
sketch5.addConstraint(Sketcher.Constraint("Horizontal", 4))
sketch5.addConstraint(Sketcher.Constraint("Vertical", 6))
sketch5.addConstraint(Sketcher.Constraint("Vertical", 8))
sketch5.addConstraint(Sketcher.Constraint("Horizontal", 10))
sketch5.addConstraint(Sketcher.Constraint("Horizontal", 13))
sketch5.addConstraint(Sketcher.Constraint("Vertical", 15))
sketch5.addConstraint(Sketcher.Constraint("Symmetric", 2, 2, 4, 2, -1))
sketch5.addConstraint(Sketcher.Constraint("Symmetric", 1, 2, 5, 2, -1))
sketch5.addConstraint(Sketcher.Constraint("Symmetric", 10, 2, 12, 2, -1))
sketch5.addConstraint(Sketcher.Constraint("Symmetric", 8, 2, 14, 2, -1))
sketch5.addConstraint(Sketcher.Constraint("Parallel", 0, 2))
sketch5.addConstraint(Sketcher.Constraint("Perpendicular", 2, 5))
sketch5.addConstraint(Sketcher.Constraint("Parallel", 5, 9))
sketch5.addConstraint(Sketcher.Constraint("Parallel", 9, 11))
sketch5.addConstraint(Sketcher.Constraint("Perpendicular", 11, 12))
sketch5.addConstraint(Sketcher.Constraint("Parallel", 12, 14))
sketch5.addConstraint(Sketcher.Constraint("Horizontal", 0, 2, 8, 2))
sketch5.addConstraint(Sketcher.Constraint("Horizontal", 3, 2, 9, 2))
sketch5.addConstraint(Sketcher.Constraint("Horizontal", 1, 2, 11, 2))
sketch5.addConstraint(Sketcher.Constraint("Horizontal", 6, 2, 14, 2))
sketch5.addConstraint(Sketcher.Constraint("DistanceX", 3, 1, 3, 2, Q("140 mm")))
sketch5.addConstraint(Sketcher.Constraint("DistanceX", -1, 1, 0, 2, Q("40 mm")))
sketch5.addConstraint(Sketcher.Constraint("DistanceY", 0, 2, -1, 1, Q("240 mm")))
sketch5.addConstraint(Sketcher.Constraint("DistanceX", -1, 1, 2, 2, Q("90 mm")))
sketch5.addConstraint(Sketcher.Constraint("DistanceX", 8, 2, -1, 1, Q("60 mm")))
sketch5.addConstraint(Sketcher.Constraint("Distance", 7, Q("268.052538 mm")))
pad3 = body.newObject("PartDesign::Pad", "Pad002")
pad3.Profile = sketch5
pad3.Length = 6

sketch6 = body.newObject("Sketcher::SketchObject", "Sketch005")
sketch6.AttachmentSupport = (doc.getObject("XZ_Plane"), [""])
sketch6.MapMode = "FlatFace"
sketch6.addGeometry(Part.Circle(App.Vector(-46.483109, 278, 0), App.Vector(0, 0, 1), 2), False)
sketch6.addGeometry(Part.Circle(App.Vector(26.483109, 278, 0), App.Vector(0, 0, 1), 2), False)
sketch6.addGeometry(Part.Circle(App.Vector(268, 36.483109, 0), App.Vector(0, 0, 1), 2), False)
sketch6.addGeometry(Part.Circle(App.Vector(268, -36.483109, 0), App.Vector(0, 0, 1), 2), False)
sketch6.addGeometry(Part.Circle(App.Vector(26.483109, -278, 0), App.Vector(0, 0, 1), 2), False)
sketch6.addGeometry(Part.Circle(App.Vector(-46.483109, -278, 0), App.Vector(0, 0, 1), 2), False)
sketch6.addGeometry(Part.Circle(App.Vector(-288, -36.483109, 0), App.Vector(0, 0, 1), 2), False)
sketch6.addGeometry(Part.Circle(App.Vector(-288, 36.483109, 0), App.Vector(0, 0, 1), 2), False)
sketch6.addConstraint(Sketcher.Constraint("Equal", 0, 1))
sketch6.addConstraint(Sketcher.Constraint("Equal", 1, 2))
sketch6.addConstraint(Sketcher.Constraint("Equal", 2, 3))
sketch6.addConstraint(Sketcher.Constraint("Equal", 3, 4))
sketch6.addConstraint(Sketcher.Constraint("Equal", 4, 5))
sketch6.addConstraint(Sketcher.Constraint("Equal", 5, 6))
sketch6.addConstraint(Sketcher.Constraint("Equal", 6, 7))
sketch6.addConstraint(Sketcher.Constraint("Symmetric", 2, 3, 3, 3, -1))
sketch6.addConstraint(Sketcher.Constraint("Symmetric", 1, 3, 4, 3, -1))
sketch6.addConstraint(Sketcher.Constraint("Symmetric", 0, 3, 5, 3, -1))
sketch6.addConstraint(Sketcher.Constraint("Symmetric", 6, 3, 7, 3, -1))
sketch6.addConstraint(Sketcher.Constraint("Horizontal", 0, 3, 1, 3))
sketch6.addConstraint(Sketcher.Constraint("Horizontal", 3, 3, 6, 3))
sketch6.addConstraint(Sketcher.Constraint("Diameter", 0, Q("4 mm")))
sketch6.addConstraint(Sketcher.Constraint("DistanceY", -1, 1, 0, 3, Q("278 mm")))
sketch6.addConstraint(Sketcher.Constraint("DistanceX", -1, 1, 2, 3, Q("268 mm")))
sketch6.addConstraint(Sketcher.Constraint("DistanceX", 6, 3, -1, 1, Q("288 mm")))
sketch6.addConstraint(Sketcher.Constraint("DistanceX", 0, 3, -1, 1, Q("46.483109 mm")))
sketch6.addConstraint(Sketcher.Constraint("DistanceX", -1, 1, 1, 3, Q("26.483109 mm")))
sketch6.addConstraint(Sketcher.Constraint("DistanceY", -1, 1, 2, 3, Q("36.483109 mm")))
doc.recompute()
hole = body.newObject("PartDesign::Hole", "Hole")
hole.Profile = sketch6
hole.ThreadType = "None"
hole.Diameter = 4
hole.DepthType = "Dimension"
hole.Depth = 98.31
hole.DrillPoint = "Angled"
hole.DrillPointAngle = 118

sketch7 = body.newObject("Sketcher::SketchObject", "Sketch006")
sketch7.AttachmentSupport = (doc.getObject("XZ_Plane"), [""])
sketch7.MapMode = "FlatFace"
sketch7.AttachmentOffset = App.Placement(App.Vector(0, 0, -6), App.Rotation())
sketch7.addGeometry(Part.Circle(App.Vector(-30.430566, 32.5, 0), App.Vector(0, 0, 1), 2), False)
sketch7.addGeometry(Part.Circle(App.Vector(31.383084, 32.5, 0), App.Vector(0, 0, 1), 2), False)
sketch7.addGeometry(Part.Circle(App.Vector(31.383084, -32.5, 0), App.Vector(0, 0, 1), 2), False)
sketch7.addGeometry(Part.Circle(App.Vector(-30.430566, -32.5, 0), App.Vector(0, 0, 1), 2), False)
sketch7.addConstraint(Sketcher.Constraint("Equal", 0, 1))
sketch7.addConstraint(Sketcher.Constraint("Equal", 1, 2))
sketch7.addConstraint(Sketcher.Constraint("Equal", 2, 3))
sketch7.addConstraint(Sketcher.Constraint("Symmetric", 1, 3, 2, 3, -1))
sketch7.addConstraint(Sketcher.Constraint("Symmetric", 0, 3, 3, 3, -1))
sketch7.addConstraint(Sketcher.Constraint("Horizontal", 0, 3, 1, 3))
sketch7.addConstraint(Sketcher.Constraint("Diameter", 0, Q("4 mm")))
sketch7.addConstraint(Sketcher.Constraint("DistanceY", 2, 3, 1, 3, Q("65 mm")))
sketch7.addConstraint(Sketcher.Constraint("DistanceX", 0, 3, 1, 3, Q("61.81365 mm")))
sketch7.addConstraint(Sketcher.Constraint("DistanceX", 0, 3, -1, 1, Q("30.430566 mm")))
doc.recompute()
hole2 = body.newObject("PartDesign::Hole", "Hole001")
hole2.Profile = sketch7
hole2.ThreadType = "None"
hole2.Diameter = 4
hole2.DepthType = "Dimension"
hole2.Depth = 98.31
hole2.DrillPoint = "Angled"
hole2.DrillPointAngle = 118
hole2.Reversed = True

doc.recompute()
